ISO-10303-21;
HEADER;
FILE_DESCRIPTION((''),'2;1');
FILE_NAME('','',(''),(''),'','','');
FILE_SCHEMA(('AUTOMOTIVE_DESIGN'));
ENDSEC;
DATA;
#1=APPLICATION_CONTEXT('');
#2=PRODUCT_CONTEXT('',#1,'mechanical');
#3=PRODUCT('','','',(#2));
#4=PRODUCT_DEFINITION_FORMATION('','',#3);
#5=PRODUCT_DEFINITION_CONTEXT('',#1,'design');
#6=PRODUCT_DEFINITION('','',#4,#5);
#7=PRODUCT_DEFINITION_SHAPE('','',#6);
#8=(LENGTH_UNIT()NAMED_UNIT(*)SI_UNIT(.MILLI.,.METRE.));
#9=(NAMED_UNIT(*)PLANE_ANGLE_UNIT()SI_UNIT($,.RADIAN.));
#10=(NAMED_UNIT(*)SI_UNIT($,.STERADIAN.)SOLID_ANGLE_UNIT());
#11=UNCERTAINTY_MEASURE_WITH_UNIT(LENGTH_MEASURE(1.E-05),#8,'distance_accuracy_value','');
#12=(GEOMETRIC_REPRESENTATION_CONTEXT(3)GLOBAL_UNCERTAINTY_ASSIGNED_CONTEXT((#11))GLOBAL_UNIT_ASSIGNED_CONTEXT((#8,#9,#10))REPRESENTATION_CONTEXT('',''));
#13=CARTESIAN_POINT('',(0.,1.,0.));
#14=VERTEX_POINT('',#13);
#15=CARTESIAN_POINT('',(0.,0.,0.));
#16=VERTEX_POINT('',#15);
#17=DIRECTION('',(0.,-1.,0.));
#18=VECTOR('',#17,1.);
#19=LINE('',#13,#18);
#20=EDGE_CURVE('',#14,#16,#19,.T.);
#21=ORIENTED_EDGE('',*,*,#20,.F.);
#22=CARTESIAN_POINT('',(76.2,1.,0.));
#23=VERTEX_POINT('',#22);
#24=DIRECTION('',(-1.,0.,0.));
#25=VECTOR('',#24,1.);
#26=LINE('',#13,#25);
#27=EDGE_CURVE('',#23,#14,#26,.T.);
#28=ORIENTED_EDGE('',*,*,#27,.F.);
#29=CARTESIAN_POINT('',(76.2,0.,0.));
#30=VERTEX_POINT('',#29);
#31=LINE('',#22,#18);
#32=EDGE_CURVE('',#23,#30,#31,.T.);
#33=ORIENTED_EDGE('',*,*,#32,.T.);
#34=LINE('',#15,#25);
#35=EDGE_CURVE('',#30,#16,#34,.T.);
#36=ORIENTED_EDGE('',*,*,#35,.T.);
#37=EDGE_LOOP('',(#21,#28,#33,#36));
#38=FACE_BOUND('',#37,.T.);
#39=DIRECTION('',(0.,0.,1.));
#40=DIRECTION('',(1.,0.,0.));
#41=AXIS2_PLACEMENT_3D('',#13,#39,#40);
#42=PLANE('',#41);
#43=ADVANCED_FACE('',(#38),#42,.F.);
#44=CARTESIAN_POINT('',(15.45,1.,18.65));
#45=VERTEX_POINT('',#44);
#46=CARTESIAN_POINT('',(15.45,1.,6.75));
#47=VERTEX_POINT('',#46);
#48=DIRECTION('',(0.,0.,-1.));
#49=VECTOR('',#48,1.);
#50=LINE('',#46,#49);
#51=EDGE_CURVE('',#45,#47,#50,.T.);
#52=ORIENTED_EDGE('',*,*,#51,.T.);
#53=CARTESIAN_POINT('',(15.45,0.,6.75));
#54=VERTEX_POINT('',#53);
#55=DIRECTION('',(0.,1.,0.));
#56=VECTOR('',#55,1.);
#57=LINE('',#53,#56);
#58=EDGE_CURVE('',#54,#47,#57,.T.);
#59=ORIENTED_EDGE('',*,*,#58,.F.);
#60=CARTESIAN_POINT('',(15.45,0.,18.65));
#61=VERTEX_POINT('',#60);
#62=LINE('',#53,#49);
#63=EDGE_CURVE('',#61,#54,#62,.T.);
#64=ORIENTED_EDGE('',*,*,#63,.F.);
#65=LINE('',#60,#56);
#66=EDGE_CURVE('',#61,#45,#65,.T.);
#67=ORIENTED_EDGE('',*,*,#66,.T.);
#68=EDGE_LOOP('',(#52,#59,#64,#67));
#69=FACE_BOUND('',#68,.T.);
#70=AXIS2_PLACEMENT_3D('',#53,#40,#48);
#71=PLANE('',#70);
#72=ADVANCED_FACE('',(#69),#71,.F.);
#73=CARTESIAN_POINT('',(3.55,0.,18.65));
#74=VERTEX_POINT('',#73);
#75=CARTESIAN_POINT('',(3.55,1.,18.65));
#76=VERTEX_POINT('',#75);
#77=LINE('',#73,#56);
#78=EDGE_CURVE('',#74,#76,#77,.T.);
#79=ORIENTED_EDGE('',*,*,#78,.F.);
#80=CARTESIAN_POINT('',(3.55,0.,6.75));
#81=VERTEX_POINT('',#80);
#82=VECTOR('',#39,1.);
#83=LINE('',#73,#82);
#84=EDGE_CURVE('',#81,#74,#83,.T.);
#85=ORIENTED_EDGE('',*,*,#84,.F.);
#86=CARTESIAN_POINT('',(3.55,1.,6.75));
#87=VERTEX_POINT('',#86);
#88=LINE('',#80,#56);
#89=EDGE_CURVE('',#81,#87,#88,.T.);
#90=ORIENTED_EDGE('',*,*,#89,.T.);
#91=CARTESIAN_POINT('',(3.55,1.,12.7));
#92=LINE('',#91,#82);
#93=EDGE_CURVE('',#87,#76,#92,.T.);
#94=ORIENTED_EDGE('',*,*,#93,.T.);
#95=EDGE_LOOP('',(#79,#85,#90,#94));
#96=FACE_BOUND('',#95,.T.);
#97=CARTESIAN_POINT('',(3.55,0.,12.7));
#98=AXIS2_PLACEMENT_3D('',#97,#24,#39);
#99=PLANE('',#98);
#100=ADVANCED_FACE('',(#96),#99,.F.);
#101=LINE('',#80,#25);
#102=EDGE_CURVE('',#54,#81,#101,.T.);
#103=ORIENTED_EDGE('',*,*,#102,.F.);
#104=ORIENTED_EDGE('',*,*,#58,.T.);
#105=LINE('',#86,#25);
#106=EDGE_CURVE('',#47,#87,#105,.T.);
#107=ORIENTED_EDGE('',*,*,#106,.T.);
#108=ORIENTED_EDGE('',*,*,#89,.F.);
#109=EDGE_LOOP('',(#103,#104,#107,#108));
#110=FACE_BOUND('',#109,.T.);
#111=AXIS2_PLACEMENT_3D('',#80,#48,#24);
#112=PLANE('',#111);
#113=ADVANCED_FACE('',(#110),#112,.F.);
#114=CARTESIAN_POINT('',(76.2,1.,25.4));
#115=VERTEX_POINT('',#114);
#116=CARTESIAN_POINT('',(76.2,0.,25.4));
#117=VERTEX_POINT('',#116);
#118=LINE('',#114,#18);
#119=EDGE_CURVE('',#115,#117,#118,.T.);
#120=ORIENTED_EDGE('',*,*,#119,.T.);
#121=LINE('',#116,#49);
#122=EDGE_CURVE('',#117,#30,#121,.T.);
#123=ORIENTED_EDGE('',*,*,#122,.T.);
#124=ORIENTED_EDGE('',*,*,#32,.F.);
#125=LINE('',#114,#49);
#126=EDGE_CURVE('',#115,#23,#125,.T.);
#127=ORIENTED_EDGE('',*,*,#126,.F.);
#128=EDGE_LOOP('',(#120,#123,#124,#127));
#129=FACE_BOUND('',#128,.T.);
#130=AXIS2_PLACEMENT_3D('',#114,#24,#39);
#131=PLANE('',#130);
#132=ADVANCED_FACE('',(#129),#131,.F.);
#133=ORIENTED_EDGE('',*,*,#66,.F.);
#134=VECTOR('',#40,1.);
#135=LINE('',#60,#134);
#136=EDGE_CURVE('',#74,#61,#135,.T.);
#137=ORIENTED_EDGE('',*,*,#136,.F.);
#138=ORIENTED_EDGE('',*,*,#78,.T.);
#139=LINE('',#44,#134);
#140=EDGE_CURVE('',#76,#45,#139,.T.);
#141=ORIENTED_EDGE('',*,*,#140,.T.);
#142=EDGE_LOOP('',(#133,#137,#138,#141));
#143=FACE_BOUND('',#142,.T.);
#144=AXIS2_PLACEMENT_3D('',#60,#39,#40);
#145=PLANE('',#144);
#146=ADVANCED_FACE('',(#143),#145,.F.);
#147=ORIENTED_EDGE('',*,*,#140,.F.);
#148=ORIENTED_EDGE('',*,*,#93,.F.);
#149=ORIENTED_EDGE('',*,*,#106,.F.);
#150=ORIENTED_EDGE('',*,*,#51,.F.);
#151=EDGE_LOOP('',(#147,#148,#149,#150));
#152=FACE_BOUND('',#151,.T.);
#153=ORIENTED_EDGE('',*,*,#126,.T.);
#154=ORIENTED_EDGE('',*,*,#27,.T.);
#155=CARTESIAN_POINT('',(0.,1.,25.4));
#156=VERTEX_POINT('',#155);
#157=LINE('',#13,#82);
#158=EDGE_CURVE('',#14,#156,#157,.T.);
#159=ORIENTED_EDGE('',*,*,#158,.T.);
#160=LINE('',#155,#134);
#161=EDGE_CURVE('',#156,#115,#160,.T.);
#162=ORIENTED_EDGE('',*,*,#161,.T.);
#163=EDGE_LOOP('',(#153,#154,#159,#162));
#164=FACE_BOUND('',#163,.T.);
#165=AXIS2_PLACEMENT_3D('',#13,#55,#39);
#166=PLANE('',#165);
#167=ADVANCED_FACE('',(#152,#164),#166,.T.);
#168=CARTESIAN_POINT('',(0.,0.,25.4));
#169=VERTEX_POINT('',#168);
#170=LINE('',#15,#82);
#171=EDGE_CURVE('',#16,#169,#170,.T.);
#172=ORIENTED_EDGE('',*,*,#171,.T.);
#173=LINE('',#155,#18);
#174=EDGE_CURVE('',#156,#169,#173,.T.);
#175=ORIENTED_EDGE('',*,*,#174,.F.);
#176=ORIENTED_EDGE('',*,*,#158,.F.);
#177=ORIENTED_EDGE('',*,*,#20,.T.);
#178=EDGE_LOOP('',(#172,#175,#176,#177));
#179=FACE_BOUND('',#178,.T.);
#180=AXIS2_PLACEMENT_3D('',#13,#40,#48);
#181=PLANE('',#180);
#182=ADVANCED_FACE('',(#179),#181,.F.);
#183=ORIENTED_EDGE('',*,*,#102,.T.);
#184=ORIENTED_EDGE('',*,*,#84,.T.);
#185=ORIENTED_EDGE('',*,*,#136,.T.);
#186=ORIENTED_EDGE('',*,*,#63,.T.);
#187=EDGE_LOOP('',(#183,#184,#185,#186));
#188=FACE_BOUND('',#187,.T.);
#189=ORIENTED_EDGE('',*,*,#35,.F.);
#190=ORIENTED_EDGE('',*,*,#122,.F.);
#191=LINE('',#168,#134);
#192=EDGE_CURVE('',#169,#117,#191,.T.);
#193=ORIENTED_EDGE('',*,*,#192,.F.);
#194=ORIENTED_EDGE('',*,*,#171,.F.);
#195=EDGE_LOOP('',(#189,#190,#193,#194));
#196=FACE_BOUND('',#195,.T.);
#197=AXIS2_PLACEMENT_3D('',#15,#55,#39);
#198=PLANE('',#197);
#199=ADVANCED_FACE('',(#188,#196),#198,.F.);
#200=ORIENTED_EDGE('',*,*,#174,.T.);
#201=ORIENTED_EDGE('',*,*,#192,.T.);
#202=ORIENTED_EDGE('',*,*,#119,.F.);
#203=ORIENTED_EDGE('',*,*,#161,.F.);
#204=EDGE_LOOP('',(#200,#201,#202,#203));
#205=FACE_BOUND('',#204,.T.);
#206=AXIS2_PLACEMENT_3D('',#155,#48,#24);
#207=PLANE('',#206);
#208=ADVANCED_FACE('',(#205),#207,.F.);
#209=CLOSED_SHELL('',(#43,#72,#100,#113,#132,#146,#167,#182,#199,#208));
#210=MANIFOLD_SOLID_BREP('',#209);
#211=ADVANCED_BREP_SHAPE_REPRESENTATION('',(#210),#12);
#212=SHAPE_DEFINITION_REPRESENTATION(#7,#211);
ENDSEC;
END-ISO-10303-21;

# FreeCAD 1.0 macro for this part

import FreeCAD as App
import Part
import Sketcher

V = App.Vector
Q = App.Units.Quantity


def add_polygon(sketch, points):
    """Adds a closed chain of lines whose ends are joined by coincident constraints."""
    first, n = sketch.GeometryCount, len(points)
    for a, b in zip(points, points[1:] + points[:1]):
        sketch.addGeometry(Part.LineSegment(App.Vector(*a, 0), App.Vector(*b, 0)), False)
    for i in range(n):
        sketch.addConstraint(Sketcher.Constraint("Coincident", first + i, 2, first + (i + 1) % n, 1))

doc = App.newDocument("Part")
params = doc.addObject("Spreadsheet::Sheet", "Params")
for row, (alias, value) in enumerate([
    ("sketch1_width", "76.2 mm"),
    ("sketch1_height", "25.4 mm"),
    ("pad1_length", "1 mm"),
    ("sketch2_width", "11.9 mm"),
    ("pocket1_length", "1 mm"),
], start=1):
    params.set(f"A{row}", alias)
    params.set(f"B{row}", "=" + value)
    params.setAlias(f"B{row}", alias)

body = doc.addObject("PartDesign::Body", "Body")

# Sketch on XZ plane
sketch1 = doc.addObject("Sketcher::SketchObject", "Sketch")
body.addObject(sketch1)
sketch1.AttachmentSupport = (doc.XZ_Plane, [""])
sketch1.MapMode = "FlatFace"
add_polygon(sketch1, [(0, 0), (0, 25), (76, 25), (76, 0)])  # lines 0-3
sketch1.addConstraint([
    Sketcher.Constraint("Vertical", 0),
    Sketcher.Constraint("Horizontal", 1),
    Sketcher.Constraint("Vertical", 2),
    Sketcher.Constraint("Horizontal", 3),
    Sketcher.Constraint("Coincident", 3, 2, -1, 1),
    Sketcher.Constraint("DistanceX", 1, 1, 1, 2, Q("76.2 mm")),
    Sketcher.Constraint("DistanceY", 0, 1, 0, 2, Q("25.4 mm")),
])
sketch1.setExpression("Constraints[9]", "Params.sketch1_width")
sketch1.setExpression("Constraints[10]", "Params.sketch1_height")
pad1 = doc.addObject("PartDesign::Pad", "Pad")
body.addObject(pad1)
pad1.Profile = sketch1
pad1.setExpression("Length", "Params.pad1_length")
pad1.Reversed = True

# Sketch on XZ plane
sketch2 = doc.addObject("Sketcher::SketchObject", "Sketch001")
body.addObject(sketch2)
sketch2.AttachmentSupport = (doc.XZ_Plane, [""])
sketch2.MapMode = "FlatFace"
sketch2.AttachmentOffset = App.Placement(V(0, 0, -1), App.Rotation())
add_polygon(sketch2, [(4, 7), (4, 19), (15, 19), (15, 7)])  # lines 0-3
sketch2.addConstraint([
    Sketcher.Constraint("Vertical", 0),
    Sketcher.Constraint("Horizontal", 1),
    Sketcher.Constraint("Vertical", 2),
    Sketcher.Constraint("Horizontal", 3),
    Sketcher.Constraint("Equal", 3, 0),
    Sketcher.Constraint("DistanceX", 1, 1, 1, 2, Q("11.9 mm")),
    Sketcher.Constraint("DistanceX", -1, 1, 0, 2, Q("3.55 mm")),
    Sketcher.Constraint("DistanceY", -1, 1, 0, 2, Q("18.65 mm")),
])
sketch2.setExpression("Constraints[9]", "Params.sketch2_width")
pocket1 = doc.addObject("PartDesign::Pocket", "Pocket")
body.addObject(pocket1)
pocket1.Profile = sketch2
pocket1.setExpression("Length", "Params.pocket1_length")
pocket1.Reversed = True

doc.recompute()
